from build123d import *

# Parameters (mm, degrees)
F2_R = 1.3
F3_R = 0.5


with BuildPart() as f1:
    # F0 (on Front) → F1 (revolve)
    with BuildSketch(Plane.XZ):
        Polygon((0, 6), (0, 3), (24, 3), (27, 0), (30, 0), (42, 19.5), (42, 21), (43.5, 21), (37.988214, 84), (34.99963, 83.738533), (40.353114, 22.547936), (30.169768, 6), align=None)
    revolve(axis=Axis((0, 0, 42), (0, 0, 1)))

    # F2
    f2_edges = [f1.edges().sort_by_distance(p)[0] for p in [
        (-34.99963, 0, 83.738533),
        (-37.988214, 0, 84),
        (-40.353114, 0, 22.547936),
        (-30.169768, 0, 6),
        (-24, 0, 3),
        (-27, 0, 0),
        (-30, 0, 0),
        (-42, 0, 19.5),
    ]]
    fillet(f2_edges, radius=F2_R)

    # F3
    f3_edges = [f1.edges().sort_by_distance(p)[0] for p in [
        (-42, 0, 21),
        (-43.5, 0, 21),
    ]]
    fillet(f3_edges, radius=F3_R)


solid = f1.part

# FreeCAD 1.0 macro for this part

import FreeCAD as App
import Part
import Sketcher
Q = App.Units.Quantity


def edges_at(feature, points):
    """Names of the edges that pass closest to the given points."""
    edges = feature.Shape.Edges
    near = lambda p: min(range(len(edges)), key=lambda i: edges[i].distToShape(Part.Vertex(*p))[0])
    return sorted({f"Edge{near(p) + 1}" for p in points})

doc = App.newDocument("Part")
body = doc.addObject("PartDesign::Body", "Body")

sketch1 = doc.addObject("Sketcher::SketchObject", "Sketch")
body.addObject(sketch1)
sketch1.AttachmentSupport = (doc.XZ_Plane, [""])
sketch1.MapMode = "FlatFace"
sketch1.addGeometry([
    Part.LineSegment(App.Vector(0, 6, 0), App.Vector(0, 3, 0)),
    Part.LineSegment(App.Vector(0, 3, 0), App.Vector(24, 3, 0)),
    Part.LineSegment(App.Vector(24, 3, 0), App.Vector(27, 0, 0)),
    Part.LineSegment(App.Vector(27, 0, 0), App.Vector(30, 0, 0)),
    Part.LineSegment(App.Vector(30, 0, 0), App.Vector(42, 19.5, 0)),
    Part.LineSegment(App.Vector(42, 19.5, 0), App.Vector(42, 21, 0)),
    Part.LineSegment(App.Vector(42, 21, 0), App.Vector(43.5, 21, 0)),
    Part.LineSegment(App.Vector(43.5, 21, 0), App.Vector(38, 84, 0)),
    Part.LineSegment(App.Vector(38, 84, 0), App.Vector(35, 83.7, 0)),
    Part.LineSegment(App.Vector(35, 83.7, 0), App.Vector(40.4, 22.5, 0)),
    Part.LineSegment(App.Vector(40.4, 22.5, 0), App.Vector(30.2, 6, 0)),
    Part.LineSegment(App.Vector(30.2, 6, 0), App.Vector(0, 6, 0)),
], False)
sketch1.addConstraint([
    Sketcher.Constraint("Coincident", 0, 2, 1, 1),
    Sketcher.Constraint("Coincident", 1, 2, 2, 1),
    Sketcher.Constraint("Coincident", 2, 2, 3, 1),
    Sketcher.Constraint("Coincident", 3, 2, 4, 1),
    Sketcher.Constraint("Coincident", 4, 2, 5, 1),
    Sketcher.Constraint("Coincident", 5, 2, 6, 1),
    Sketcher.Constraint("Coincident", 6, 2, 7, 1),
    Sketcher.Constraint("Coincident", 7, 2, 8, 1),
    Sketcher.Constraint("Coincident", 8, 2, 9, 1),
    Sketcher.Constraint("Coincident", 9, 2, 10, 1),
    Sketcher.Constraint("Coincident", 10, 2, 11, 1),
    Sketcher.Constraint("Coincident", 11, 2, 0, 1),
    Sketcher.Constraint("Vertical", 0),
    Sketcher.Constraint("Horizontal", 1),
    Sketcher.Constraint("Horizontal", 3),
    Sketcher.Constraint("Vertical", 5),
    Sketcher.Constraint("Horizontal", 6),
    Sketcher.Constraint("Horizontal", 11),
    Sketcher.Constraint("PointOnObject", 0, 2, -2),
    Sketcher.Constraint("PointOnObject", 2, 2, -1),
    Sketcher.Constraint("Perpendicular", 7, 8),
    Sketcher.Constraint("Perpendicular", 8, 9),
    Sketcher.Constraint("Parallel", 4, 10),
    Sketcher.Constraint("Equal", 3, 0),
    Sketcher.Constraint("Equal", 6, 5),
    Sketcher.Constraint("DistanceX", 1, 1, 1, 2, Q("24 mm")),
    Sketcher.Constraint("DistanceX", 3, 1, 3, 2, Q("3 mm")),
    Sketcher.Constraint("Angle", 2, Q("-45 deg")),
    Sketcher.Constraint("Angle", 7, Q("95 deg")),
    Sketcher.Constraint("Distance", 8, Q("3 mm")),
    Sketcher.Constraint("DistanceX", 6, 1, 6, 2, Q("1.5 mm")),
    Sketcher.Constraint("DistanceY", -1, 1, 0, 2, Q("3 mm")),
    Sketcher.Constraint("DistanceX", -1, 1, 4, 2, Q("42 mm")),
    Sketcher.Constraint("DistanceY", -1, 1, 5, 2, Q("21 mm")),
    Sketcher.Constraint("DistanceY", -1, 1, 7, 2, Q("84 mm")),
    Sketcher.Constraint("DistanceX", 11, 2, 11, 1, Q("30.169768 mm")),
])
revolution = doc.addObject("PartDesign::Revolution", "Revolution")
body.addObject(revolution)
revolution.Profile = sketch1
revolution.ReferenceAxis = (sketch1, ["V_Axis"])
revolution.Angle = 360
doc.recompute()

fillet = doc.addObject("PartDesign::Fillet", "Fillet")
body.addObject(fillet)
fillet.Base = (revolution, edges_at(revolution, [
    (-35, 0, 83.739),
    (-37.988, 0, 84),
    (-40.353, 0, 22.548),
    (-30.17, 0, 6),
    (-24, 0, 3),
    (-27, 0, 0),
    (-30, 0, 0),
    (-42, 0, 19.5),
]))
fillet.Radius = 1.3
doc.recompute()

fillet2 = doc.addObject("PartDesign::Fillet", "Fillet001")
body.addObject(fillet2)
fillet2.Base = (fillet, edges_at(fillet, [(-42, 0, 21), (-43.5, 0, 21)]))
fillet2.Radius = 0.5

doc.recompute()
